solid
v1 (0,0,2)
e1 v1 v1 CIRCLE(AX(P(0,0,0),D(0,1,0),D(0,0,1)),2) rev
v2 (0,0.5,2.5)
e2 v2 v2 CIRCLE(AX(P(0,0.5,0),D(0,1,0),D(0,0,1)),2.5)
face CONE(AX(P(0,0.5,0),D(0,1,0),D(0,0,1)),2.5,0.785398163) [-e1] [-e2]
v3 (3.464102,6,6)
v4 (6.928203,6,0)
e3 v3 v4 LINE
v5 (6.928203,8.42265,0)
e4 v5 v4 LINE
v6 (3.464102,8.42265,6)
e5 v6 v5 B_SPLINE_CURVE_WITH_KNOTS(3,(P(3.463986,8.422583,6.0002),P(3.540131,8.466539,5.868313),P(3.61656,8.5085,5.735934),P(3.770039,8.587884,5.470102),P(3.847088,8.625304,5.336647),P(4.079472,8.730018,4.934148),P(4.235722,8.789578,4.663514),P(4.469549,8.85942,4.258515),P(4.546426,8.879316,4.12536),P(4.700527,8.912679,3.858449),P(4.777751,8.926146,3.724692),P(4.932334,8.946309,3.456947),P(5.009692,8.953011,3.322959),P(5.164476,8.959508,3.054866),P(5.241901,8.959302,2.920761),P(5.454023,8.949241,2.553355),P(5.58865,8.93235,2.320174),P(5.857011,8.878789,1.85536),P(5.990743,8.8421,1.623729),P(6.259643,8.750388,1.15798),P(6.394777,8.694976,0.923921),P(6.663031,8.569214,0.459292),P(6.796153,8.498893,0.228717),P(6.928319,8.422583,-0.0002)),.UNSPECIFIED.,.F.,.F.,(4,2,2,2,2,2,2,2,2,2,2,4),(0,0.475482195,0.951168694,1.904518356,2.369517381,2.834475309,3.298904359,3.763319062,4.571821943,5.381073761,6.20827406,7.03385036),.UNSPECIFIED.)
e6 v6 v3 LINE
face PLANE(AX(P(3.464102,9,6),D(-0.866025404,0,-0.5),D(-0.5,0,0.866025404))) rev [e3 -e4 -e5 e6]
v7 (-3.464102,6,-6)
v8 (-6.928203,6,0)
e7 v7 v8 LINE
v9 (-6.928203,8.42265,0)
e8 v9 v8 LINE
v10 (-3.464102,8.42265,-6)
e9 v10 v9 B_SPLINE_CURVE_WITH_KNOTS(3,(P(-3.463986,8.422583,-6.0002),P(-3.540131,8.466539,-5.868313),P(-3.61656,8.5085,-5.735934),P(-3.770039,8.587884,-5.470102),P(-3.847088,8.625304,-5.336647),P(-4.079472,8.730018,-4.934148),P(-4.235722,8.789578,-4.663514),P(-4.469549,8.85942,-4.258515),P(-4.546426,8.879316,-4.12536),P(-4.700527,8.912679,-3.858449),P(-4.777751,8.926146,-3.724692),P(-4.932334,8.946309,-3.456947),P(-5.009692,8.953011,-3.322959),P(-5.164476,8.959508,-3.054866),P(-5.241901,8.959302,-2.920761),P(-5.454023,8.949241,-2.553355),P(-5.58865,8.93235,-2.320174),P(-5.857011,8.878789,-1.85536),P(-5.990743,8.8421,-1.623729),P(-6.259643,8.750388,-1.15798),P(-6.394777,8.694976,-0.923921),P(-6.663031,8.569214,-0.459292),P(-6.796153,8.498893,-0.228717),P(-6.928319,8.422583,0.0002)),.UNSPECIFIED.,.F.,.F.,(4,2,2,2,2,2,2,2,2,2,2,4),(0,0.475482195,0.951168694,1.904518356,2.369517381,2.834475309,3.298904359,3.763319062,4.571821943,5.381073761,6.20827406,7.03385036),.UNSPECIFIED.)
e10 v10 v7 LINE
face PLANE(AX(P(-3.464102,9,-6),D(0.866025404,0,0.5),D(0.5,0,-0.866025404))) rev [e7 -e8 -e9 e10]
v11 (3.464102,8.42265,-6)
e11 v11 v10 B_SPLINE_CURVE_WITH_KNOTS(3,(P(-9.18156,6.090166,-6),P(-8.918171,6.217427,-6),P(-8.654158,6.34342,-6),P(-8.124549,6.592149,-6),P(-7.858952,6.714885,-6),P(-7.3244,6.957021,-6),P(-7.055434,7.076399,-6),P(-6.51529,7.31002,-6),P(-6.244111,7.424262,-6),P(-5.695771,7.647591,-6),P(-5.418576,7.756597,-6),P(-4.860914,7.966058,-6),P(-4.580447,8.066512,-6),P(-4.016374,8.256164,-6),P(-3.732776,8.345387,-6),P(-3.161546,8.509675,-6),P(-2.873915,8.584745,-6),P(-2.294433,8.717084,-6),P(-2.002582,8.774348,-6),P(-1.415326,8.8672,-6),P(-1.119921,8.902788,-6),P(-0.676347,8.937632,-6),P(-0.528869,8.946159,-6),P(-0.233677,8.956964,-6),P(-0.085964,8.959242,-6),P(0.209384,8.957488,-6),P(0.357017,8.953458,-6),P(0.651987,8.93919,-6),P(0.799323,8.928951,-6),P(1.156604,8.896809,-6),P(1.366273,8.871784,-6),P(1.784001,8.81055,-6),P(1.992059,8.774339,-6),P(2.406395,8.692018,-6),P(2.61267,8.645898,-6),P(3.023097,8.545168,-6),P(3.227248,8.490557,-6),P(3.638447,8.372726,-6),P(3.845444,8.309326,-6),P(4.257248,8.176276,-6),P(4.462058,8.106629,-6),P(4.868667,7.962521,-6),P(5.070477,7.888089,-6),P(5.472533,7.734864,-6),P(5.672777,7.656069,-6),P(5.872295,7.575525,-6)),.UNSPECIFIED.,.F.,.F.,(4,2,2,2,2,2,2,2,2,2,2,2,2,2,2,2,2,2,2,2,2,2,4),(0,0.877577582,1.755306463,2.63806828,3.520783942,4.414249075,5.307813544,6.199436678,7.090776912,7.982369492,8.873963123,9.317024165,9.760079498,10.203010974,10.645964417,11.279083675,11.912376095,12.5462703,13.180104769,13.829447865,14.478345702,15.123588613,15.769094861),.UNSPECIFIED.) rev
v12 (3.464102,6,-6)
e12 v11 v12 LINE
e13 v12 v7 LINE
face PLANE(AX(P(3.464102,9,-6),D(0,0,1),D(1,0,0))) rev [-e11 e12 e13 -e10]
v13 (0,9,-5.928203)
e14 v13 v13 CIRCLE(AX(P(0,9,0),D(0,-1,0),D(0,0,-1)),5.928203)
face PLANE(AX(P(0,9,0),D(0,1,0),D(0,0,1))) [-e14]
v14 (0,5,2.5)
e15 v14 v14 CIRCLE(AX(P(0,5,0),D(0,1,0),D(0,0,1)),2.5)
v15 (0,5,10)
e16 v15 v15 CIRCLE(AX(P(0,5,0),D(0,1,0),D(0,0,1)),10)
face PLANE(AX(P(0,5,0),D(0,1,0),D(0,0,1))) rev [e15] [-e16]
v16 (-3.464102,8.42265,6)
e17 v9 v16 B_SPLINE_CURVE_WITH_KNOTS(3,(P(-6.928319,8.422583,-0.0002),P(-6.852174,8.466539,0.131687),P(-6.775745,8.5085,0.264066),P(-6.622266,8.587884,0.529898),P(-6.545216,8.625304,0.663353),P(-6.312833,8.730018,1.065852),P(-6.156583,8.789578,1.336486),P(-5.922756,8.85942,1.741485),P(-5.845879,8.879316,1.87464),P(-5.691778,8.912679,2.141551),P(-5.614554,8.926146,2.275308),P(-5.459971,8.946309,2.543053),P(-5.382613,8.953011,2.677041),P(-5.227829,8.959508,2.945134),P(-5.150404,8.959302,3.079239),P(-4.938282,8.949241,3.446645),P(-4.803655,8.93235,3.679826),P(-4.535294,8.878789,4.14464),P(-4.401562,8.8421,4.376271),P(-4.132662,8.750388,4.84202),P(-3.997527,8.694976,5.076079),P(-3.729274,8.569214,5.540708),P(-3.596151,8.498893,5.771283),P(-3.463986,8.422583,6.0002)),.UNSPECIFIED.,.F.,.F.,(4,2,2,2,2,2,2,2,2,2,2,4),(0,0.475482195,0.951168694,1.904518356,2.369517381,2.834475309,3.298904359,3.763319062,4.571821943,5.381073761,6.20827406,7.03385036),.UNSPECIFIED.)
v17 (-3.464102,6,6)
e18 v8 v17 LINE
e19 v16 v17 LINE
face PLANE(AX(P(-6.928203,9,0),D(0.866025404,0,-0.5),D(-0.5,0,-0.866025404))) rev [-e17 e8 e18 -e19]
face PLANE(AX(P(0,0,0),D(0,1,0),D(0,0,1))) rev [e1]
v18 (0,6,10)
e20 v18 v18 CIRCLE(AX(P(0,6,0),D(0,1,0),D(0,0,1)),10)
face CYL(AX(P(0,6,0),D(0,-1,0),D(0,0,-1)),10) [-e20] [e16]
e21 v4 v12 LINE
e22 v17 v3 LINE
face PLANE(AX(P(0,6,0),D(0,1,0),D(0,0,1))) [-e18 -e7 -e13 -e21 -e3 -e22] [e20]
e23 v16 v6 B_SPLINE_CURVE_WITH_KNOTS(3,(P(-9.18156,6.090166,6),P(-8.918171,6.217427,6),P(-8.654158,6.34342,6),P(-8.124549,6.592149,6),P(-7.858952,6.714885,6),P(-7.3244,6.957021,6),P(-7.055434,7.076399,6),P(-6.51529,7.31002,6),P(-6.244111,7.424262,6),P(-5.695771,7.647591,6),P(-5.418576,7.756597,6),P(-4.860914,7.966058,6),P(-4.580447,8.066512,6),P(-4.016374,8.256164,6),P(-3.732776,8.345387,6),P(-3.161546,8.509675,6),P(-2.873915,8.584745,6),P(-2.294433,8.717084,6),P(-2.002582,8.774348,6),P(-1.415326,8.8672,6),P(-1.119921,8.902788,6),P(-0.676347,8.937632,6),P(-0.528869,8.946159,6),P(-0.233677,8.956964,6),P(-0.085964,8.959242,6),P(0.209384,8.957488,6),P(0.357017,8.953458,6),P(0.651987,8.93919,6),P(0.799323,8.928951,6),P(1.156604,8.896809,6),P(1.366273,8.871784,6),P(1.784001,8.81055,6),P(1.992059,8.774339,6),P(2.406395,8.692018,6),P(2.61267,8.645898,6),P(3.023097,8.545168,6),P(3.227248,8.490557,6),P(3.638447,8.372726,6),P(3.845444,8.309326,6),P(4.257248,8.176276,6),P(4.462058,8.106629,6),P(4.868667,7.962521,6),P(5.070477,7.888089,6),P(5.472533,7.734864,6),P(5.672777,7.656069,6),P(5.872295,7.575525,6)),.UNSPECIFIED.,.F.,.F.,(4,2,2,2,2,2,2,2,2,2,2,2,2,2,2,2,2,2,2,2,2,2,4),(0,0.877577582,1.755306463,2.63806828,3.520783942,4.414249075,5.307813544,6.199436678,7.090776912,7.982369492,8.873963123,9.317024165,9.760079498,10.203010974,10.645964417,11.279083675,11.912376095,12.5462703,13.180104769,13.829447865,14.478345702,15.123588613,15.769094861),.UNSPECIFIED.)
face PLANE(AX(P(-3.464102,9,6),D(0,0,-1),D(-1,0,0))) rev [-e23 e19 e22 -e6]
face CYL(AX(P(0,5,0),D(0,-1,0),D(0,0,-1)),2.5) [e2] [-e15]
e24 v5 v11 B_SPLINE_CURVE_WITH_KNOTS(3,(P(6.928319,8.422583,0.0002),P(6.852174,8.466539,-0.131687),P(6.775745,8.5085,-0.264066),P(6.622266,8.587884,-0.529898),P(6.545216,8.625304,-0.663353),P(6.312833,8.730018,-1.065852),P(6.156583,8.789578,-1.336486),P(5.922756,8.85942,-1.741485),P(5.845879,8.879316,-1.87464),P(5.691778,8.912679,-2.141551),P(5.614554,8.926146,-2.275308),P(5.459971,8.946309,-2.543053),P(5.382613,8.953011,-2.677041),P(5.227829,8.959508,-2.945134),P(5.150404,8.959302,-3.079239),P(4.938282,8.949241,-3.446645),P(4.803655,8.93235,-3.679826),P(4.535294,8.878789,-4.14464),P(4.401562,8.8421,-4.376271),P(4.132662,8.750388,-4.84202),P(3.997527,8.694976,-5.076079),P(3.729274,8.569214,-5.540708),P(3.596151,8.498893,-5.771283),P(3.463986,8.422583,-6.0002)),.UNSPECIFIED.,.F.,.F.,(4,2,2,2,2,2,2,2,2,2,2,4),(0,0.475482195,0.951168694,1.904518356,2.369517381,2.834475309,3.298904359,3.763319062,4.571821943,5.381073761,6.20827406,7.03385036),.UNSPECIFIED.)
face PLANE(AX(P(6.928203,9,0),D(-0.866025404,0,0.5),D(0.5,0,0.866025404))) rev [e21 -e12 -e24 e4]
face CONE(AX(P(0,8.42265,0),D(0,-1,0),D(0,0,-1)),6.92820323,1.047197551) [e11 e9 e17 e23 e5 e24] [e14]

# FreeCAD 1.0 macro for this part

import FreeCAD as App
import Part
import Sketcher
Q = App.Units.Quantity


def edges_at(feature, points):
    """Names of the edges that pass closest to the given points."""
    edges = feature.Shape.Edges
    near = lambda p: min(range(len(edges)), key=lambda i: edges[i].distToShape(Part.Vertex(*p))[0])
    return sorted({f"Edge{near(p) + 1}" for p in points})


def add_polygon(sketch, points):
    """Adds a closed chain of lines whose ends are joined by coincident constraints."""
    first, n = sketch.GeometryCount, len(points)
    for a, b in zip(points, points[1:] + points[:1]):
        sketch.addGeometry(Part.LineSegment(App.Vector(*a, 0), App.Vector(*b, 0)), False)
    for i in range(n):
        sketch.addConstraint(Sketcher.Constraint("Coincident", first + i, 2, first + (i + 1) % n, 1))

doc = App.newDocument("Part")
body = doc.addObject("PartDesign::Body", "Body")

# Sketch on XZ plane
sketch1 = doc.addObject("Sketcher::SketchObject", "Sketch")
body.addObject(sketch1)
sketch1.AttachmentSupport = (doc.XZ_Plane, [""])
sketch1.MapMode = "FlatFace"
sketch1.addGeometry(Part.Circle(App.Vector(0, 0, 0), App.Vector(0, 0, 1), 2.5), False)
sketch1.addConstraint(Sketcher.Constraint("Coincident", 0, 3, -1, 1))
sketch1.addConstraint(Sketcher.Constraint("Diameter", 0, 5.0))
pad1 = doc.addObject("PartDesign::Pad", "Pad")
body.addObject(pad1)
pad1.Profile = sketch1
pad1.Length = 5
pad1.Reversed = True

# Sketch on XZ plane
sketch2 = doc.addObject("Sketcher::SketchObject", "Sketch001")
body.addObject(sketch2)
sketch2.AttachmentSupport = (doc.XZ_Plane, [""])
sketch2.MapMode = "FlatFace"
sketch2.AttachmentOffset = App.Placement(App.Vector(0, 0, -5), App.Rotation())
sketch2.addGeometry(Part.Circle(App.Vector(0, 0, 0), App.Vector(0, 0, 1), 10), False)
sketch2.addConstraint(Sketcher.Constraint("Coincident", 0, 3, -1, 1))
sketch2.addConstraint(Sketcher.Constraint("Diameter", 0, 20.0))
pad2 = doc.addObject("PartDesign::Pad", "Pad001")
body.addObject(pad2)
pad2.Profile = sketch2
pad2.Length = 1
pad2.Reversed = True

# Sketch on XZ plane
sketch3 = doc.addObject("Sketcher::SketchObject", "Sketch002")
body.addObject(sketch3)
sketch3.AttachmentSupport = (doc.XZ_Plane, [""])
sketch3.MapMode = "FlatFace"
sketch3.AttachmentOffset = App.Placement(App.Vector(0, 0, -6), App.Rotation())
add_polygon(sketch3, [(3.464102, -6), (-3.464102, -6), (-6.928203, 0), (-3.464102, 6), (3.464102, 6), (6.928203, 0)])  # lines 0-5
sketch3.addConstraint(Sketcher.Constraint("Horizontal", 0))
sketch3.addConstraint(Sketcher.Constraint("Horizontal", 3))
sketch3.addConstraint(Sketcher.Constraint("Symmetric", 0, 2, 3, 2, -1, 1))
sketch3.addConstraint(Sketcher.Constraint("Symmetric", 1, 2, 4, 2, -1, 1))
sketch3.addConstraint(Sketcher.Constraint("PointOnObject", 1, 2, -1))
sketch3.addConstraint(Sketcher.Constraint("Parallel", 2, 5))
sketch3.addConstraint(Sketcher.Constraint("Vertical", 0, 2, 2, 2))
sketch3.addConstraint(Sketcher.Constraint("Angle", 1, Q("120 deg")))
sketch3.addConstraint(Sketcher.Constraint("DistanceY", 0, 2, -1, 1, 6.0))
sketch3.addConstraint(Sketcher.Constraint("DistanceX", 0, 2, -1, 1, 3.464102))
pad3 = doc.addObject("PartDesign::Pad", "Pad002")
body.addObject(pad3)
pad3.Profile = sketch3
pad3.Length = 3
pad3.Reversed = True

# Sketch on XY plane
sketch4 = doc.addObject("Sketcher::SketchObject", "Sketch003")
body.addObject(sketch4)
sketch4.AttachmentSupport = (doc.XY_Plane, [""])
sketch4.MapMode = "FlatFace"
add_polygon(sketch4, [(-5.928203, 9), (-6.928203, 9), (-6.928203, 8.42265)])  # lines 0-2
sketch4.addConstraint(Sketcher.Constraint("Horizontal", 0))
sketch4.addConstraint(Sketcher.Constraint("Vertical", 1))
sketch4.addConstraint(Sketcher.Constraint("DistanceX", 0, 2, 0, 1, 1.0))
sketch4.addConstraint(Sketcher.Constraint("Angle", 2, Q("30 deg")))
sketch4.addConstraint(Sketcher.Constraint("DistanceY", -1, 1, 0, 2, 9.0))
sketch4.addConstraint(Sketcher.Constraint("DistanceX", 0, 2, -1, 1, 6.928203))
groove = doc.addObject("PartDesign::Groove", "Groove")
body.addObject(groove)
groove.Profile = sketch4
groove.ReferenceAxis = (sketch4, ["V_Axis"])
groove.Angle = 360
doc.recompute()

chamfer = doc.addObject("PartDesign::Chamfer", "Chamfer")
body.addObject(chamfer)
chamfer.Base = (groove, edges_at(groove, [(0, 0, -2.5)]))
chamfer.Size = 0.5

doc.recompute()
